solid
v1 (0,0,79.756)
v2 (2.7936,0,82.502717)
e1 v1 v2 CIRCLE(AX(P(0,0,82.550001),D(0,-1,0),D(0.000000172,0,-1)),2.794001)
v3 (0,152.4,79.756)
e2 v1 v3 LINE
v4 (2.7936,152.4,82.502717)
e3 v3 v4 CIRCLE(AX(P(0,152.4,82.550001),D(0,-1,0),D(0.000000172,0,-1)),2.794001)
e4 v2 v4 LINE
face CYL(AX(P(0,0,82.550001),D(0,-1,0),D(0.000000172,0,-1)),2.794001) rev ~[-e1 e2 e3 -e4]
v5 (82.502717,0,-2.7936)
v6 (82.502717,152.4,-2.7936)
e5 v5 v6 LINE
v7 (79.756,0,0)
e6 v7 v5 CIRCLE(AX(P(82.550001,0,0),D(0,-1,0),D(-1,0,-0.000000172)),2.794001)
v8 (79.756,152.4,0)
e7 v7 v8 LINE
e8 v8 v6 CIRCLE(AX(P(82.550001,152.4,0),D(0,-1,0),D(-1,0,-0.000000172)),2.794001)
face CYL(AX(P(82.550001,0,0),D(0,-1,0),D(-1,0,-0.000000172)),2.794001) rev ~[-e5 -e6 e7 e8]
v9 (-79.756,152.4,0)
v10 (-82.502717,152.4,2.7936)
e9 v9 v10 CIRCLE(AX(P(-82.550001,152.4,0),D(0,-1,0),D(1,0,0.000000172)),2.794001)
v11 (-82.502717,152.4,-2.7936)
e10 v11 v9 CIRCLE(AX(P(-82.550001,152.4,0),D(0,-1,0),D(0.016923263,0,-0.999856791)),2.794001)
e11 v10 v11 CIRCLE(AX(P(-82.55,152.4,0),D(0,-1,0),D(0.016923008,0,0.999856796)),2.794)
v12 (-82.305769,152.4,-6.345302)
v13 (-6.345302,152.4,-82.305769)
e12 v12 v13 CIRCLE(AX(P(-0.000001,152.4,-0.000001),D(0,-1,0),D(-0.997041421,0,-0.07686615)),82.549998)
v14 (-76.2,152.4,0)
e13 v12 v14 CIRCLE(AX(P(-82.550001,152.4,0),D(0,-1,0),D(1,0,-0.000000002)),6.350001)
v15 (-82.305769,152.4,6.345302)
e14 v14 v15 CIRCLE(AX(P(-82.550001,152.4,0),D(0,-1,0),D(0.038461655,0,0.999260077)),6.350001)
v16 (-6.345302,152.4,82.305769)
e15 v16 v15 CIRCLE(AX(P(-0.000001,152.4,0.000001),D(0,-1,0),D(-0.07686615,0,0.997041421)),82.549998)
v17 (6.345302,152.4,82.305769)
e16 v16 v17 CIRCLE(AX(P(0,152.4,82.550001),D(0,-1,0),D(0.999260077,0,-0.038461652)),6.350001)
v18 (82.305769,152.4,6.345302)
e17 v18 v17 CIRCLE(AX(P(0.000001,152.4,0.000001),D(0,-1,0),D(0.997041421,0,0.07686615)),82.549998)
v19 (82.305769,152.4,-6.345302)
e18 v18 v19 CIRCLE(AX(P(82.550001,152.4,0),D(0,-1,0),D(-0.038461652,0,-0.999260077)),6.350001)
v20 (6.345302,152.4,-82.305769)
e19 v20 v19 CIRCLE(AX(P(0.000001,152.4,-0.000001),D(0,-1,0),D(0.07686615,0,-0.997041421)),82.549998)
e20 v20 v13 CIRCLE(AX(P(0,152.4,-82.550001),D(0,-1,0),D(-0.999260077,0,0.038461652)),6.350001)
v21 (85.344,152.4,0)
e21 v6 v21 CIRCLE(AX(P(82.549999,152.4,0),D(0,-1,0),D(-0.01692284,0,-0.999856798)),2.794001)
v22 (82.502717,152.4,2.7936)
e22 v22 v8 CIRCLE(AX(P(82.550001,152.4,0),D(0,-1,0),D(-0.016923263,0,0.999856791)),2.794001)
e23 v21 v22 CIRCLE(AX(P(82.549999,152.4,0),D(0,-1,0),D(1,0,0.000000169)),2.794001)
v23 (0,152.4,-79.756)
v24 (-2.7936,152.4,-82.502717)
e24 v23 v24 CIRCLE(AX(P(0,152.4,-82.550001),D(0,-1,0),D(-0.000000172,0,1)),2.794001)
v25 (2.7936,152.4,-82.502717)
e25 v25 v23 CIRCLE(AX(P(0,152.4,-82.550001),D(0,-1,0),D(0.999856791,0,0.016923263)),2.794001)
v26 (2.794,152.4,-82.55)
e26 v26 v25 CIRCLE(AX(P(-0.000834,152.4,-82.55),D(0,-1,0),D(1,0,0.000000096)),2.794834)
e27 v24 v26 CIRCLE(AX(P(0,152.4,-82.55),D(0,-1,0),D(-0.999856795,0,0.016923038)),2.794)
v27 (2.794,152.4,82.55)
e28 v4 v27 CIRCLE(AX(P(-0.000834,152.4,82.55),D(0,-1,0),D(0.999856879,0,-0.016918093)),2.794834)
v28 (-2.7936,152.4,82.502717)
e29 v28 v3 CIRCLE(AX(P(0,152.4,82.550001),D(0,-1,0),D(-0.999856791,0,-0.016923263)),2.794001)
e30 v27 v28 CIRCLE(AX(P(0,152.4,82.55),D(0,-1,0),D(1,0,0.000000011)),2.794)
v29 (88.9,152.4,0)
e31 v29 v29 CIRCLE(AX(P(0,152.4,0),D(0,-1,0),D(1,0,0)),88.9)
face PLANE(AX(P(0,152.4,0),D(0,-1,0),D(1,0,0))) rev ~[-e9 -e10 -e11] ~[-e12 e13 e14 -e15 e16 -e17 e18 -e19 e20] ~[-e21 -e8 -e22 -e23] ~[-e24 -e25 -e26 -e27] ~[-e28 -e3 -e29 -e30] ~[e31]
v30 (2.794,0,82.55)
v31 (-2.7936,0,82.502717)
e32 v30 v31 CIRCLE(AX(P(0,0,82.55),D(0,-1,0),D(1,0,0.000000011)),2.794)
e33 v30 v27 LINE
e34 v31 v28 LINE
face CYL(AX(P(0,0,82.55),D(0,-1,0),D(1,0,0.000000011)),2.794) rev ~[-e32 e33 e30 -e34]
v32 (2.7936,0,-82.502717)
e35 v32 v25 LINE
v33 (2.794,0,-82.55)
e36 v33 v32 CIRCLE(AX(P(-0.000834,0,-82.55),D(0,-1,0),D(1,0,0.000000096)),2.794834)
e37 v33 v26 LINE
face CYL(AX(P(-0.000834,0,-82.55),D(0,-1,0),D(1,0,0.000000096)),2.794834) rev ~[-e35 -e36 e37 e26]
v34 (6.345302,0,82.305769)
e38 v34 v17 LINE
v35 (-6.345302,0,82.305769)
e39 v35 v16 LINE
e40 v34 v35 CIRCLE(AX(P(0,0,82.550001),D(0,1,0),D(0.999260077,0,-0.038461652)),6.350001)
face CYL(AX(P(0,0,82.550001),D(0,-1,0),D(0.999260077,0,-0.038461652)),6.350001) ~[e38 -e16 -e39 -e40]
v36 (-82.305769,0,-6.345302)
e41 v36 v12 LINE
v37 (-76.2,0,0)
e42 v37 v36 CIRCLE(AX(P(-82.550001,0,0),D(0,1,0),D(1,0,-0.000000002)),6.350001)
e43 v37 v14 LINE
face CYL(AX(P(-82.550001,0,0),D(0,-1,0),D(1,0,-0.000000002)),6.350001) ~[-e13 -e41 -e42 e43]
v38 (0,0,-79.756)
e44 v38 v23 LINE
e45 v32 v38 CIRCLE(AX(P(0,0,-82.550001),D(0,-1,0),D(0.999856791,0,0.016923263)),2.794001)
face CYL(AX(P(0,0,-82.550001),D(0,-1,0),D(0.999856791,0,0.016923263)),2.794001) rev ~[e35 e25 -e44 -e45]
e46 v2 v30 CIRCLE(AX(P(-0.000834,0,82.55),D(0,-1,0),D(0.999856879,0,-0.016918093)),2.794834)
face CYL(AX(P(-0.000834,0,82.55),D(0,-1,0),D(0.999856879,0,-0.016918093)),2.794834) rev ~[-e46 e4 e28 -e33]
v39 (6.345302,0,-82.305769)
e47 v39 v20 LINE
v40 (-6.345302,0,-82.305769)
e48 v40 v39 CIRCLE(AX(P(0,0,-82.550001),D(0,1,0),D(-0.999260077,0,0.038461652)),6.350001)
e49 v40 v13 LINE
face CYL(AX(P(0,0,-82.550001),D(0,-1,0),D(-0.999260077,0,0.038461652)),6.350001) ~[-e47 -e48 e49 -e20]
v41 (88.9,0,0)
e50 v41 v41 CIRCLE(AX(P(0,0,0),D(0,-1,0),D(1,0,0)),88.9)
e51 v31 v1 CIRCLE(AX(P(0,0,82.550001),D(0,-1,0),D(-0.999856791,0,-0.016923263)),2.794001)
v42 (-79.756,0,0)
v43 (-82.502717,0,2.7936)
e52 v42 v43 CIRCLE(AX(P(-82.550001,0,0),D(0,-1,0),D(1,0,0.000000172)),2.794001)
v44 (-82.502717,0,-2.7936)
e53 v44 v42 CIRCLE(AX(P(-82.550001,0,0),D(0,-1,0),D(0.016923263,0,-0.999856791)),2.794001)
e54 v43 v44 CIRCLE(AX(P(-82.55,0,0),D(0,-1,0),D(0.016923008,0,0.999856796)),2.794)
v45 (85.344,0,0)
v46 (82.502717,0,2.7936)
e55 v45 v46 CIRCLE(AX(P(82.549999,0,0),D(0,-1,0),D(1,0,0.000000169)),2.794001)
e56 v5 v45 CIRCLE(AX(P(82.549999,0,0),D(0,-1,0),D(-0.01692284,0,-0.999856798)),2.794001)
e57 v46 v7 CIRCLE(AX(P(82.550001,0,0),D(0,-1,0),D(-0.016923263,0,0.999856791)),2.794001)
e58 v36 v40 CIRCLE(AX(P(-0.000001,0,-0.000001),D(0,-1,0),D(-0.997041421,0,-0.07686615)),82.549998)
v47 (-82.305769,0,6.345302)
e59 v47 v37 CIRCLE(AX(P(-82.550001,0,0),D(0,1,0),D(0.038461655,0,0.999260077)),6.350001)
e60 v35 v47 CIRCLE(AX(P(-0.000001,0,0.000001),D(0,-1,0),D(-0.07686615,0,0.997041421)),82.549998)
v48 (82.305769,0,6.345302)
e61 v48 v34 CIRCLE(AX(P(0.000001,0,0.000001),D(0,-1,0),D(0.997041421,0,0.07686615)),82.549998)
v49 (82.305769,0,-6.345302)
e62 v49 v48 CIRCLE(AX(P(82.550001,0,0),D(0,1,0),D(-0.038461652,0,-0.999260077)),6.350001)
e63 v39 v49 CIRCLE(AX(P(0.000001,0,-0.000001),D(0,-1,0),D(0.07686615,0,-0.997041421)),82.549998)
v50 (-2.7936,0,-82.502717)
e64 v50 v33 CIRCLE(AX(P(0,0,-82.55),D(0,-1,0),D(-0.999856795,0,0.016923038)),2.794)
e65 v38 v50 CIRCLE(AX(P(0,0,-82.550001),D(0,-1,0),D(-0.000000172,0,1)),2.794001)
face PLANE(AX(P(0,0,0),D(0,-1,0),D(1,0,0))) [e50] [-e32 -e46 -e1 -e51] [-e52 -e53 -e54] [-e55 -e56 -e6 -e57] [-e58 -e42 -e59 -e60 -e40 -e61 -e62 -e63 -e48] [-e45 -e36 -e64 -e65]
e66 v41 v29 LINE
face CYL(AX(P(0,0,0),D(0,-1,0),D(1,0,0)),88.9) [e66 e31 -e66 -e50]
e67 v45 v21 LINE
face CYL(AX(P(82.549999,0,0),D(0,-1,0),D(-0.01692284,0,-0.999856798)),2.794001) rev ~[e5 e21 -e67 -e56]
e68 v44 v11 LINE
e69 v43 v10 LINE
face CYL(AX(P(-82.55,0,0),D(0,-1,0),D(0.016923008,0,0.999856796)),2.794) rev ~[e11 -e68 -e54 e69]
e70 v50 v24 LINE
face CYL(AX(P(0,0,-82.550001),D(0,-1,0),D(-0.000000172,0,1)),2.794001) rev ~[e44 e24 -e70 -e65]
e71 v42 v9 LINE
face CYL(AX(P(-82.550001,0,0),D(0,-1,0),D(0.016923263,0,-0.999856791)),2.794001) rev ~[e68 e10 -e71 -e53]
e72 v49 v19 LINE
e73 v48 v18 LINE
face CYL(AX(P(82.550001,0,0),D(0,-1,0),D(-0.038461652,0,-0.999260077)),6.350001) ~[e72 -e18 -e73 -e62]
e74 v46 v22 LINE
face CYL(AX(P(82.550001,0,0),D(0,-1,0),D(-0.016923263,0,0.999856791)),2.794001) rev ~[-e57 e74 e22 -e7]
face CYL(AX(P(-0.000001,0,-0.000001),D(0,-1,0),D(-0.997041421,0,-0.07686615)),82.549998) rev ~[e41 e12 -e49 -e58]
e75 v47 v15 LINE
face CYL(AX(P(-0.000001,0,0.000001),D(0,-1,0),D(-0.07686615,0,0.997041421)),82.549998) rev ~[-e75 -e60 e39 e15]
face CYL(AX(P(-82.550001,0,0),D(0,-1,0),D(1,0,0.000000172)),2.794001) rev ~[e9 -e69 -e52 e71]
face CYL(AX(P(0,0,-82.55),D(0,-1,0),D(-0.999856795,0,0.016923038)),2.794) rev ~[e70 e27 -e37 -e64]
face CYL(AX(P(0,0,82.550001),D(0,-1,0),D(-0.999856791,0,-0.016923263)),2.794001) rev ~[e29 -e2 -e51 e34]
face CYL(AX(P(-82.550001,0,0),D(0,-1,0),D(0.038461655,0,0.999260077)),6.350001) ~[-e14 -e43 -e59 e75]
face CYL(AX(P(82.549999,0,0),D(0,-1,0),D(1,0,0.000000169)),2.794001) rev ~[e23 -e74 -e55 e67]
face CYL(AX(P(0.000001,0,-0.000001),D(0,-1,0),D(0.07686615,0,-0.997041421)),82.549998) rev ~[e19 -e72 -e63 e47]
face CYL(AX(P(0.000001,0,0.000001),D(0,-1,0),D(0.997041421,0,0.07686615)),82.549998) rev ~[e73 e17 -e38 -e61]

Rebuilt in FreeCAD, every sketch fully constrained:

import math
import FreeCAD as App
import Part
import Sketcher

V = App.Vector
Q = App.Units.Quantity

doc = App.newDocument("Part")
body = doc.addObject("PartDesign::Body", "Body")

# Sketch on XZ plane
sketch1 = doc.addObject("Sketcher::SketchObject", "Sketch")
body.addObject(sketch1)
sketch1.AttachmentSupport = (doc.XZ_Plane, [""])
sketch1.MapMode = "FlatFace"
sketch1.addGeometry(Part.Circle(V(0, 0, 0), V(0, 0, 1), 88.9), False)
sketch1.addConstraint([
    Sketcher.Constraint("Coincident", 0, 3, -1, 1),
    Sketcher.Constraint("Diameter", 0, Q("7 in")),
])
pad1 = doc.addObject("PartDesign::Pad", "Pad")
body.addObject(pad1)
pad1.Profile = sketch1
pad1.Length = Q("6 in")
pad1.Reversed = True

# Sketch on XZ plane
sketch2 = doc.addObject("Sketcher::SketchObject", "Sketch001")
body.addObject(sketch2)
sketch2.AttachmentSupport = (doc.XZ_Plane, [""])
sketch2.MapMode = "FlatFace"
sketch2.addGeometry([
    Part.ArcOfCircle(Part.Circle(V(0, 82.550001, 0), V(0, 0, 1), 6.350001), math.radians(-177.795766), math.radians(-2.204234)),  # 0
    Part.ArcOfCircle(Part.Circle(V(-0.000001, 0.000001, 0), V(0, 0, 1), 82.549998), math.radians(94.408454), math.radians(175.591546)),  # 1
    Part.ArcOfCircle(Part.Circle(V(-82.550001, 0, 0), V(0, 0, 1), 6.350001), math.radians(0), math.radians(87.795766)),  # 2
    Part.ArcOfCircle(Part.Circle(V(-82.550001, 0, 0), V(0, 0, 1), 6.350001), math.radians(-87.795766), math.radians(0)),  # 3
    Part.ArcOfCircle(Part.Circle(V(-0.000001, -0.000001, 0), V(0, 0, 1), 82.549998), math.radians(-175.591546), math.radians(-94.408454)),  # 4
    Part.ArcOfCircle(Part.Circle(V(0, -82.550001, 0), V(0, 0, 1), 6.350001), math.radians(2.204234), math.radians(177.795766)),  # 5
    Part.ArcOfCircle(Part.Circle(V(0.000001, -0.000001, 0), V(0, 0, 1), 82.549998), math.radians(-85.591546), math.radians(-4.408454)),  # 6
    Part.ArcOfCircle(Part.Circle(V(82.550001, 0, 0), V(0, 0, 1), 6.350001), math.radians(92.204234), math.radians(267.795766)),  # 7
    Part.ArcOfCircle(Part.Circle(V(0.000001, 0.000001, 0), V(0, 0, 1), 82.549998), math.radians(4.408454), math.radians(85.591546)),  # 8
], False)
sketch2.addConstraint([
    Sketcher.Constraint("Coincident", 0, 1, 1, 1),
    Sketcher.Constraint("Coincident", 1, 2, 2, 2),
    Sketcher.Constraint("Tangent", 2, 1, 3, 2),
    Sketcher.Constraint("Coincident", 3, 1, 4, 1),
    Sketcher.Constraint("Coincident", 4, 2, 5, 2),
    Sketcher.Constraint("Coincident", 5, 1, 6, 1),
    Sketcher.Constraint("Coincident", 6, 2, 7, 2),
    Sketcher.Constraint("Coincident", 7, 1, 8, 1),
    Sketcher.Constraint("Coincident", 8, 2, 0, 2),
    Sketcher.Constraint("Coincident", 1, 3, -1, 1),
    Sketcher.Constraint("Coincident", 4, 3, -1, 1),
    Sketcher.Constraint("Coincident", 6, 3, -1, 1),
    Sketcher.Constraint("Coincident", 8, 3, -1, 1),
    Sketcher.Constraint("Equal", 0, 2),
    Sketcher.Constraint("Equal", 2, 3),
    Sketcher.Constraint("Equal", 1, 4),
    Sketcher.Constraint("Equal", 3, 5),
    Sketcher.Constraint("Equal", 4, 6),
    Sketcher.Constraint("Equal", 5, 7),
    Sketcher.Constraint("Equal", 6, 8),
    Sketcher.Constraint("Symmetric", 0, 3, 5, 3, -1, 1),
    Sketcher.Constraint("Symmetric", 2, 3, 7, 3, -1, 1),
    Sketcher.Constraint("PointOnObject", 0, 3, -2),
    Sketcher.Constraint("PointOnObject", 2, 3, -1),
    Sketcher.Constraint("PointOnObject", 2, 1, -1),
    Sketcher.Constraint("Radius", 0, Q("0.25 in")),
    Sketcher.Constraint("Radius", 1, Q("3.2499999 in")),
    Sketcher.Constraint("DistanceX", 2, 1, -1, 1, Q("3 in")),
    Sketcher.Constraint("DistanceY", 5, 3, 0, 3, Q("6.5 in")),
])
pocket1 = doc.addObject("PartDesign::Pocket", "Pocket")
body.addObject(pocket1)
pocket1.Profile = sketch2
pocket1.Type = "ThroughAll"

# Sketch on XZ plane
sketch3 = doc.addObject("Sketcher::SketchObject", "Sketch002")
body.addObject(sketch3)
sketch3.AttachmentSupport = (doc.XZ_Plane, [""])
sketch3.MapMode = "FlatFace"
sketch3.addGeometry([
    Part.ArcOfCircle(Part.Circle(V(0, 82.550001, 0), V(0, 0, 1), 2.794001), math.radians(-179.030322), math.radians(-90.00001)),  # 0
    Part.ArcOfCircle(Part.Circle(V(0, 82.550001, 0), V(0, 0, 1), 2.794001), math.radians(-89.99999), math.radians(-0.969678)),  # 1
    Part.ArcOfCircle(Part.Circle(V(-0.000834, 82.55, 0), V(0, 0, 1), 2.794834), math.radians(-0.969382), math.radians(-0.000006)),  # 2
    Part.ArcOfCircle(Part.Circle(V(0, 82.55, 0), V(0, 0, 1), 2.794), math.radians(0.000001), math.radians(180.969665)),  # 3
    Part.ArcOfCircle(Part.Circle(V(-82.55, 0, 0), V(0, 0, 1), 2.794), math.radians(89.030337), math.radians(270.969663)),  # 4
    Part.ArcOfCircle(Part.Circle(V(-82.550001, 0, 0), V(0, 0, 1), 2.794001), math.radians(-89.030322), math.radians(-0.00001)),  # 5
    Part.ArcOfCircle(Part.Circle(V(-82.550001, 0, 0), V(0, 0, 1), 2.794001), math.radians(0.00001), math.radians(89.030322)),  # 6
    Part.ArcOfCircle(Part.Circle(V(82.550001, 0, 0), V(0, 0, 1), 2.794001), math.radians(-179.99999), math.radians(-90.969678)),  # 7
    Part.ArcOfCircle(Part.Circle(V(82.549999, 0, 0), V(0, 0, 1), 2.794001), math.radians(-90.969654), math.radians(-0.00001)),  # 8
    Part.ArcOfCircle(Part.Circle(V(82.549999, 0, 0), V(0, 0, 1), 2.794001), math.radians(0.00001), math.radians(90.969654)),  # 9
    Part.ArcOfCircle(Part.Circle(V(82.550001, 0, 0), V(0, 0, 1), 2.794001), math.radians(90.969678), math.radians(179.99999)),  # 10
    Part.ArcOfCircle(Part.Circle(V(-0.000834, -82.55, 0), V(0, 0, 1), 2.794834), math.radians(0.000006), math.radians(0.969382)),  # 11
    Part.ArcOfCircle(Part.Circle(V(0, -82.550001, 0), V(0, 0, 1), 2.794001), math.radians(0.969678), math.radians(89.99999)),  # 12
    Part.ArcOfCircle(Part.Circle(V(0, -82.550001, 0), V(0, 0, 1), 2.794001), math.radians(90.00001), math.radians(179.030322)),  # 13
    Part.ArcOfCircle(Part.Circle(V(0, -82.55, 0), V(0, 0, 1), 2.794), math.radians(179.030335), math.radians(359.999999)),  # 14
], False)
sketch3.addConstraint([
    Sketcher.Constraint("Tangent", 0, 2, 1, 1),
    Sketcher.Constraint("Coincident", 1, 2, 2, 1),
    Sketcher.Constraint("Tangent", 2, 2, 3, 1),
    Sketcher.Constraint("Tangent", 3, 2, 0, 1),
    Sketcher.Constraint("Tangent", 4, 2, 5, 1),
    Sketcher.Constraint("Tangent", 5, 2, 6, 1),
    Sketcher.Constraint("Tangent", 6, 2, 4, 1),
    Sketcher.Constraint("Tangent", 7, 2, 8, 1),
    Sketcher.Constraint("Tangent", 8, 2, 9, 1),
    Sketcher.Constraint("Tangent", 9, 2, 10, 1),
    Sketcher.Constraint("Tangent", 10, 2, 7, 1),
    Sketcher.Constraint("Coincident", 11, 2, 12, 1),
    Sketcher.Constraint("Tangent", 12, 2, 13, 1),
    Sketcher.Constraint("Tangent", 13, 2, 14, 1),
    Sketcher.Constraint("Tangent", 14, 2, 11, 1),
    Sketcher.Constraint("Equal", 0, 1),
    Sketcher.Constraint("Equal", 3, 4),
    Sketcher.Constraint("Equal", 6, 7),
    Sketcher.Constraint("Equal", 7, 8),
    Sketcher.Constraint("Equal", 2, 11),
    Sketcher.Constraint("Equal", 10, 12),
    Sketcher.Constraint("Equal", 12, 13),
    Sketcher.Constraint("Symmetric", 4, 3, 7, 3, -1, 1),
    Sketcher.Constraint("Symmetric", 0, 3, 12, 3, -1, 1),
    Sketcher.Constraint("Symmetric", 1, 2, 3, 2, -2),
    Sketcher.Constraint("Symmetric", 4, 2, 7, 2, -2),
    Sketcher.Constraint("PointOnObject", 0, 2, -2),
    Sketcher.Constraint("PointOnObject", 5, 2, -1),
    Sketcher.Constraint("PointOnObject", 8, 2, -1),
    Sketcher.Constraint("PointOnObject", 10, 2, -1),
    Sketcher.Constraint("PointOnObject", 12, 2, -2),
    Sketcher.Constraint("Horizontal", 3, 3, 2, 2),
    Sketcher.Constraint("Horizontal", 6, 2, 9, 2),
    Sketcher.Constraint("Horizontal", 11, 2, 13, 2),
    Sketcher.Constraint("Horizontal", 13, 3, 14, 2),
    Sketcher.Constraint("Vertical", 4, 2, 6, 2),
    Sketcher.Constraint("Vertical", 1, 2, 11, 2),
    Sketcher.Constraint("Radius", 0, Q("0.11 in")),
    Sketcher.Constraint("DistanceX", 4, 3, 7, 3, Q("6.5 in")),
    Sketcher.Constraint("DistanceY", -1, 1, 0, 3, Q("3.25 in")),
    Sketcher.Constraint("Radius", 2, 2.794834),
    Sketcher.Constraint("DistanceX", -1, 1, 1, 2, 2.7936),
    Sketcher.Constraint("DistanceY", 4, 2, -1, 1, 2.7936),
])
pocket2 = doc.addObject("PartDesign::Pocket", "Pocket001")
body.addObject(pocket2)
pocket2.Profile = sketch3
pocket2.Type = "ThroughAll"

doc.recompute()
